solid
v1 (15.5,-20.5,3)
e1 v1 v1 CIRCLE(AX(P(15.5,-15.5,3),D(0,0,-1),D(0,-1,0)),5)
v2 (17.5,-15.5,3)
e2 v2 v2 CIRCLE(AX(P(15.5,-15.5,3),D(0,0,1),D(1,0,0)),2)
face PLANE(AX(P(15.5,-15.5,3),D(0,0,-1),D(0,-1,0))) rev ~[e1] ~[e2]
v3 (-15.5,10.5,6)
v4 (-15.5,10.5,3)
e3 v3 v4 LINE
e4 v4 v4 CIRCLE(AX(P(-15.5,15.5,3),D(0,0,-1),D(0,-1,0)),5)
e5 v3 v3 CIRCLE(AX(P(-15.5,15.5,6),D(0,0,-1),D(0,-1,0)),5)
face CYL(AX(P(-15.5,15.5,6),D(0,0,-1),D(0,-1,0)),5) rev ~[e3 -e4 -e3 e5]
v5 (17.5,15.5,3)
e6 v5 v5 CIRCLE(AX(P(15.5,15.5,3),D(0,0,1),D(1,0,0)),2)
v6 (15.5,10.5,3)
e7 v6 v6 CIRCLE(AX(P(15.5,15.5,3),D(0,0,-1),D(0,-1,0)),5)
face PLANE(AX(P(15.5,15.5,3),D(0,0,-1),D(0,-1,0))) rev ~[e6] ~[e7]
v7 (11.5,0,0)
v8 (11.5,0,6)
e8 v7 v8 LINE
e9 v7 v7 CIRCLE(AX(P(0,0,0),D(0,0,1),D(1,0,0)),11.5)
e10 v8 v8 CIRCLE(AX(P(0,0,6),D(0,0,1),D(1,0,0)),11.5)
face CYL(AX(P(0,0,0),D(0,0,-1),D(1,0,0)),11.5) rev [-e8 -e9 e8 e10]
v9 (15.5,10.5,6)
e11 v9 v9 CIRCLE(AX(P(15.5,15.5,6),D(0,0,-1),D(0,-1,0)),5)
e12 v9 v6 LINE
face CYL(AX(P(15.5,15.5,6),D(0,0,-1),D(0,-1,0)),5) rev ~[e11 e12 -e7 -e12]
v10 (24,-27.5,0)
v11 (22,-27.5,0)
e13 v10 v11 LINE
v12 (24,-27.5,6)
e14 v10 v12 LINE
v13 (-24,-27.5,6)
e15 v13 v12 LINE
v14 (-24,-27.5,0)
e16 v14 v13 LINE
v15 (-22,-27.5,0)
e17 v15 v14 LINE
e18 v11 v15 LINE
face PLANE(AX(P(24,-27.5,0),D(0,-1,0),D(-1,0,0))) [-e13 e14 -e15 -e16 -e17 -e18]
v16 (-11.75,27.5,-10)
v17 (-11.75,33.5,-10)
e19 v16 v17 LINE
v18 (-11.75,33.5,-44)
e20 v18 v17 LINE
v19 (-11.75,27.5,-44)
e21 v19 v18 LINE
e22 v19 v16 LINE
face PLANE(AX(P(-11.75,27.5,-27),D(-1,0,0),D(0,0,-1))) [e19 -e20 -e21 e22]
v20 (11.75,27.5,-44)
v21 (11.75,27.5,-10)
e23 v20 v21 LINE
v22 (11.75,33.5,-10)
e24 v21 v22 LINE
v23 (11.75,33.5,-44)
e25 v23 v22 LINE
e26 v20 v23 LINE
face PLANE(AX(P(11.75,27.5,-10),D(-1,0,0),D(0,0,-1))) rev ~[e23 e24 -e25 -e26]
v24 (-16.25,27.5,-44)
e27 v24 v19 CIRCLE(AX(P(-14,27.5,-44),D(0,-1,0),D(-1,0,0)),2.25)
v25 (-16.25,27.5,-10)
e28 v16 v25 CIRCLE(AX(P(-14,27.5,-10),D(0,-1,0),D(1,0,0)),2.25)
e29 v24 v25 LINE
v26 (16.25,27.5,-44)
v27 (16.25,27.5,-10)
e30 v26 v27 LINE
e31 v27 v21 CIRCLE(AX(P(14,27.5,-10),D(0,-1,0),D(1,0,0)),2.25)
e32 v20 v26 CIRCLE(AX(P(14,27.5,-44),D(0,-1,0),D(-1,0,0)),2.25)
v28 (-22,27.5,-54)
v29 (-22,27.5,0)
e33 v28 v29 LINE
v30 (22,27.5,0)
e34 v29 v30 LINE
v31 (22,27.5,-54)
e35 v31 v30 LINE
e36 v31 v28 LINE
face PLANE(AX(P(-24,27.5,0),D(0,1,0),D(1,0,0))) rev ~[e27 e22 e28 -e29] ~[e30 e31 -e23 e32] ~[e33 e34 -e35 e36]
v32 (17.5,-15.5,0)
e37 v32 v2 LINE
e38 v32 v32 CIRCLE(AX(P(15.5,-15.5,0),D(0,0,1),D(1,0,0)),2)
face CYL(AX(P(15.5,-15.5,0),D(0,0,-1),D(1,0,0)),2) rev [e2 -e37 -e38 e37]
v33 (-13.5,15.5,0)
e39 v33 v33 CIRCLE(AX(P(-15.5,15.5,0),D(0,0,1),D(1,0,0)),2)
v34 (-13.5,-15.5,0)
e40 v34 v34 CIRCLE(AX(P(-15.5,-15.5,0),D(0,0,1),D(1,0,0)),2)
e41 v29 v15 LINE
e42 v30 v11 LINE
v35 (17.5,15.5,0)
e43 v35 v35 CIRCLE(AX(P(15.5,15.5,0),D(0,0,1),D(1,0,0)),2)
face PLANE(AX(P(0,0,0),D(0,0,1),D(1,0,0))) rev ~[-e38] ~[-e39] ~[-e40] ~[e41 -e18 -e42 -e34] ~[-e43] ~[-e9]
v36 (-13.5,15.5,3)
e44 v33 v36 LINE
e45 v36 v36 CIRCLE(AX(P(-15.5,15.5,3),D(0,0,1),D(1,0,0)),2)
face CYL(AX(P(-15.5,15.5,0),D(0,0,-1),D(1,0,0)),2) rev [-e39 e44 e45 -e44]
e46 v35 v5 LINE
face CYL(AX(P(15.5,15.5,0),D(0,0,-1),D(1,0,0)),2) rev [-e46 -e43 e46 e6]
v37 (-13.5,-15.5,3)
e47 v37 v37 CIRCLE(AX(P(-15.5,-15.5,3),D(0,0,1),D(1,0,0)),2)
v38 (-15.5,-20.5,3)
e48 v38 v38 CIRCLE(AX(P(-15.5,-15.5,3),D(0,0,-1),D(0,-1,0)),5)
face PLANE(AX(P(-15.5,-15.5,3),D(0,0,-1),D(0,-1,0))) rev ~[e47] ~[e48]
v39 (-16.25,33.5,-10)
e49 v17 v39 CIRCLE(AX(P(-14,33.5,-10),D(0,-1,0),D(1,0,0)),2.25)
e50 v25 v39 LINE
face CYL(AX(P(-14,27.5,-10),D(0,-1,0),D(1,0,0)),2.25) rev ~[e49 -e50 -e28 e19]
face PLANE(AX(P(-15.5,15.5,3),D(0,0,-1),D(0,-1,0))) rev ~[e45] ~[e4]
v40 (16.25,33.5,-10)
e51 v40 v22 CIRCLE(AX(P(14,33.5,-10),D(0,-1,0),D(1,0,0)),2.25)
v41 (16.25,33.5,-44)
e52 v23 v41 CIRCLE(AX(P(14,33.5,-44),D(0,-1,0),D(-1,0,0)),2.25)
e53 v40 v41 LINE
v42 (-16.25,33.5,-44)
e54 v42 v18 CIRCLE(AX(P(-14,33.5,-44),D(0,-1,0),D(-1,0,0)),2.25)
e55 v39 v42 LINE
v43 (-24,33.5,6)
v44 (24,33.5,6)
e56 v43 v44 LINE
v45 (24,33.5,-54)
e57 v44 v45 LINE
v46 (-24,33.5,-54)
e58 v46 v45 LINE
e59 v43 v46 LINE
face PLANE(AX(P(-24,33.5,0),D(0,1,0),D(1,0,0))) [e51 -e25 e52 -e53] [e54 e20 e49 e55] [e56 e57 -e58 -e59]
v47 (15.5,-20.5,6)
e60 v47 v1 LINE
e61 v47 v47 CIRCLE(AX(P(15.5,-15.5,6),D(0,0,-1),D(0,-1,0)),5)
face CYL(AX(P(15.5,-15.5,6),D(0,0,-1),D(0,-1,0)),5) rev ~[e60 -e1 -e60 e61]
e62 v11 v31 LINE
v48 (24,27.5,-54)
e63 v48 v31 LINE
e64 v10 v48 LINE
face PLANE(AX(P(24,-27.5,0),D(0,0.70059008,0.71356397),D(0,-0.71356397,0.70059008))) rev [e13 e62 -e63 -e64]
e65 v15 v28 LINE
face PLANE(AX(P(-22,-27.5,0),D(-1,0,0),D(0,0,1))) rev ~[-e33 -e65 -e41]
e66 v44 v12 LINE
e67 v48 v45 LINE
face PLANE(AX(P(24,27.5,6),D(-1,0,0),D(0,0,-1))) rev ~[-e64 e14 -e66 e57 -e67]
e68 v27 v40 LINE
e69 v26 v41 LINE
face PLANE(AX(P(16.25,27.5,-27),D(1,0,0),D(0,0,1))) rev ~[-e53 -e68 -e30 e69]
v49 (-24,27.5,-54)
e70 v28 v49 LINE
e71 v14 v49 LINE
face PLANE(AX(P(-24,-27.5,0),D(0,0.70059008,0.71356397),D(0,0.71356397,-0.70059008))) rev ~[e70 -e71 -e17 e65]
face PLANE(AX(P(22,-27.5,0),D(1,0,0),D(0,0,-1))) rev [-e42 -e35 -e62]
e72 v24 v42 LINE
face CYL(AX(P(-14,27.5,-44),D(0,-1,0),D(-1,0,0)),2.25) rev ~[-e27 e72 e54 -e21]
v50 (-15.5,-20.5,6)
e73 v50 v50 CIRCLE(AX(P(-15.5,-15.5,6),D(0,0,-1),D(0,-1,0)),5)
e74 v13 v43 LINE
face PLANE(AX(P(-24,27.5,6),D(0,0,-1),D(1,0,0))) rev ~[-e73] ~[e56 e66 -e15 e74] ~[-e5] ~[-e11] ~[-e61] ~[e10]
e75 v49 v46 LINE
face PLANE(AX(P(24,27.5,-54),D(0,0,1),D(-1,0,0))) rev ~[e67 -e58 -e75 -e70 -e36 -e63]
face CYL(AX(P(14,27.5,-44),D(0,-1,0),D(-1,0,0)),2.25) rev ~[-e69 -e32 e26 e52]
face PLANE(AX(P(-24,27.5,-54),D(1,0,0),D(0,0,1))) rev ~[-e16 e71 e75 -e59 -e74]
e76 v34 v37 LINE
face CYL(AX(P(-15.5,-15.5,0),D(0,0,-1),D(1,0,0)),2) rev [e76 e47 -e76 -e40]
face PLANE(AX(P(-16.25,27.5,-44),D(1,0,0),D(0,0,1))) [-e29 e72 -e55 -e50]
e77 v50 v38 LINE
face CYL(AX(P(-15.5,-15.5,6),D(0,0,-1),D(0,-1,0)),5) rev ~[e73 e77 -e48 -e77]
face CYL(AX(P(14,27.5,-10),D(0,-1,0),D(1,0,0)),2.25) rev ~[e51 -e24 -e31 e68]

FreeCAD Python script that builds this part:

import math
import FreeCAD as App
import Part
import Sketcher
from FreeCAD import Vector
Q = App.Units.Quantity


def add_polygon(sketch, points):
    """Adds a closed chain of lines whose ends are joined by coincident constraints."""
    first, n = sketch.GeometryCount, len(points)
    for a, b in zip(points, points[1:] + points[:1]):
        sketch.addGeometry(Part.LineSegment(App.Vector(*a, 0), App.Vector(*b, 0)), False)
    for i in range(n):
        sketch.addConstraint(Sketcher.Constraint("Coincident", first + i, 2, first + (i + 1) % n, 1))

doc = App.newDocument("Part")
params = doc.addObject("Spreadsheet::Sheet", "Params")
for row, (alias, value) in enumerate([
    ("sketch1_diameter", "4 mm"),
    ("sketch1_diameter2", "23 mm"),
    ("sketch1_width", "48 mm"),
    ("sketch1_height", "55 mm"),
    ("pad1_length", "6 mm"),
    ("sketch2_diameter", "4 mm"),
    ("hole_diameter", "4 mm"),
    ("hole_cbore_diameter", "10 mm"),
    ("hole_cbore_depth", "3 mm"),
    ("sketch3_height", "60 mm"),
    ("sketch3_width", "48 mm"),
    ("pad2_length", "6 mm"),
    ("sketch4_radius", "2.25 mm"),
    ("sketch4_height", "34 mm"),
    ("sketch5_width", "61 mm"),
    ("sketch5_width2", "6 mm"),
    ("sketch5_height", "60 mm"),
    ("pad3_length", "2 mm"),
], start=1):
    params.set(f"A{row}", alias)
    params.set(f"B{row}", "=" + value)
    params.setAlias(f"B{row}", alias)

body = doc.addObject("PartDesign::Body", "Body")

# Sketch on XY plane
sketch1 = doc.addObject("Sketcher::SketchObject", "Sketch")
body.addObject(sketch1)
sketch1.AttachmentSupport = (doc.XY_Plane, [""])
sketch1.MapMode = "FlatFace"
add_polygon(sketch1, [(24, 27.5), (-24, 27.5), (-24, -27.5), (24, -27.5)])  # lines 0-3
sketch1.addGeometry(Part.Circle(Vector(-15.5, -15.5, 0), Vector(0, 0, 1), 2), False)  # 4
sketch1.addGeometry(Part.Circle(Vector(15.5, -15.5, 0), Vector(0, 0, 1), 2), False)  # 5
sketch1.addGeometry(Part.Circle(Vector(-15.5, 15.5, 0), Vector(0, 0, 1), 2), False)  # 6
sketch1.addGeometry(Part.Circle(Vector(0, 0, 0), Vector(0, 0, 1), 11.5), False)  # 7
sketch1.addGeometry(Part.Circle(Vector(15.5, 15.5, 0), Vector(0, 0, 1), 2), False)  # 8
sketch1.addConstraint(Sketcher.Constraint("Horizontal", 0))
sketch1.addConstraint(Sketcher.Constraint("Vertical", 1))
sketch1.addConstraint(Sketcher.Constraint("Horizontal", 2))
sketch1.addConstraint(Sketcher.Constraint("Vertical", 3))
sketch1.addConstraint(Sketcher.Constraint("Coincident", 7, 3, -1, 1))
sketch1.addConstraint(Sketcher.Constraint("Equal", 4, 5))
sketch1.addConstraint(Sketcher.Constraint("Equal", 5, 6))
sketch1.addConstraint(Sketcher.Constraint("Equal", 6, 8))
sketch1.addConstraint(Sketcher.Constraint("Symmetric", 5, 3, 6, 3, -1, 1))
sketch1.addConstraint(Sketcher.Constraint("Symmetric", 4, 3, 8, 3, -1, 1))
sketch1.addConstraint(Sketcher.Constraint("Symmetric", 0, 2, 2, 2, -1, 1))
sketch1.addConstraint(Sketcher.Constraint("Symmetric", 4, 3, 5, 3, -2))
sketch1.addConstraint(Sketcher.Constraint("Diameter", 4, Q("4 mm")))
sketch1.addConstraint(Sketcher.Constraint("Diameter", 7, Q("23 mm")))
sketch1.addConstraint(Sketcher.Constraint("DistanceX", 0, 2, 0, 1, Q("48 mm")))
sketch1.addConstraint(Sketcher.Constraint("DistanceY", 1, 2, 1, 1, Q("55 mm")))
sketch1.addConstraint(Sketcher.Constraint("DistanceX", 4, 3, 5, 3, Q("31 mm")))
sketch1.addConstraint(Sketcher.Constraint("DistanceY", 4, 3, 6, 3, Q("31 mm")))
sketch1.setExpression("Constraints[16]", "Params.sketch1_diameter")
sketch1.setExpression("Constraints[17]", "Params.sketch1_diameter2")
sketch1.setExpression("Constraints[18]", "Params.sketch1_width")
sketch1.setExpression("Constraints[19]", "Params.sketch1_height")
pad1 = doc.addObject("PartDesign::Pad", "Pad")
body.addObject(pad1)
pad1.Profile = sketch1
pad1.setExpression("Length", "Params.pad1_length")

# Sketch on XY plane
sketch2 = doc.addObject("Sketcher::SketchObject", "Sketch001")
body.addObject(sketch2)
sketch2.AttachmentSupport = (doc.XY_Plane, [""])
sketch2.MapMode = "FlatFace"
sketch2.AttachmentOffset = App.Placement(Vector(0, 0, 6), App.Rotation())
sketch2.addGeometry(Part.Circle(Vector(-15.5, 15.5, 0), Vector(0, 0, 1), 2), False)
sketch2.addGeometry(Part.Circle(Vector(15.5, 15.5, 0), Vector(0, 0, 1), 2), False)
sketch2.addGeometry(Part.Circle(Vector(15.5, -15.5, 0), Vector(0, 0, 1), 2), False)
sketch2.addGeometry(Part.Circle(Vector(-15.5, -15.5, 0), Vector(0, 0, 1), 2), False)
sketch2.addConstraint(Sketcher.Constraint("Equal", 0, 1))
sketch2.addConstraint(Sketcher.Constraint("Equal", 1, 2))
sketch2.addConstraint(Sketcher.Constraint("Equal", 2, 3))
sketch2.addConstraint(Sketcher.Constraint("Symmetric", 0, 3, 2, 3, -1, 1))
sketch2.addConstraint(Sketcher.Constraint("Symmetric", 1, 3, 3, 3, -1, 1))
sketch2.addConstraint(Sketcher.Constraint("Symmetric", 0, 3, 1, 3, -2))
sketch2.addConstraint(Sketcher.Constraint("Diameter", 0, Q("4 mm")))
sketch2.addConstraint(Sketcher.Constraint("DistanceX", 0, 3, 1, 3, Q("31 mm")))
sketch2.addConstraint(Sketcher.Constraint("DistanceY", 2, 3, 1, 3, Q("31 mm")))
sketch2.setExpression("Constraints[6]", "Params.sketch2_diameter")
doc.recompute()
hole = doc.addObject("PartDesign::Hole", "Hole")
body.addObject(hole)
hole.Profile = sketch2
hole.ThreadType = "None"
hole.setExpression("Diameter", "Params.hole_diameter")
hole.DepthType = "ThroughAll"
hole.HoleCutType = "Counterbore"
hole.setExpression("HoleCutDiameter", "Params.hole_cbore_diameter")
hole.setExpression("HoleCutDepth", "Params.hole_cbore_depth")

# Sketch on XZ plane
sketch3 = doc.addObject("Sketcher::SketchObject", "Sketch002")
body.addObject(sketch3)
sketch3.AttachmentSupport = (doc.XZ_Plane, [""])
sketch3.MapMode = "FlatFace"
sketch3.AttachmentOffset = App.Placement(Vector(0, 0, -27.5), App.Rotation())
add_polygon(sketch3, [(-24, -54), (-24, 6), (24, 6), (24, -54)])  # lines 0-3
sketch3.addConstraint(Sketcher.Constraint("Vertical", 0))
sketch3.addConstraint(Sketcher.Constraint("Horizontal", 1))
sketch3.addConstraint(Sketcher.Constraint("Vertical", 2))
sketch3.addConstraint(Sketcher.Constraint("Horizontal", 3))
sketch3.addConstraint(Sketcher.Constraint("DistanceY", 0, 1, 0, 2, Q("60 mm")))
sketch3.addConstraint(Sketcher.Constraint("DistanceX", 1, 1, 1, 2, Q("48 mm")))
sketch3.addConstraint(Sketcher.Constraint("DistanceX", 0, 2, -1, 1, Q("24 mm")))
sketch3.addConstraint(Sketcher.Constraint("DistanceY", -1, 1, 0, 2, Q("6 mm")))
sketch3.setExpression("Constraints[8]", "Params.sketch3_height")
sketch3.setExpression("Constraints[9]", "Params.sketch3_width")
pad2 = doc.addObject("PartDesign::Pad", "Pad001")
body.addObject(pad2)
pad2.Profile = sketch3
pad2.setExpression("Length", "Params.pad2_length")
pad2.Reversed = True

# Sketch on XZ plane
sketch4 = doc.addObject("Sketcher::SketchObject", "Sketch003")
body.addObject(sketch4)
sketch4.AttachmentSupport = (doc.XZ_Plane, [""])
sketch4.MapMode = "FlatFace"
sketch4.AttachmentOffset = App.Placement(Vector(0, 0, -27.5), App.Rotation())
sketch4.addGeometry(Part.ArcOfCircle(Part.Circle(Vector(-14, -44, 0), Vector(0, 0, 1), 2.2), math.radians(180), math.radians(360)), False)
sketch4.addGeometry(Part.LineSegment(Vector(-11.8, -44, 0), Vector(-11.8, -10, 0)), False)
sketch4.addGeometry(Part.ArcOfCircle(Part.Circle(Vector(-14, -10, 0), Vector(0, 0, 1), 2.2), math.radians(0), math.radians(180)), False)
sketch4.addGeometry(Part.LineSegment(Vector(-16.2, -10, 0), Vector(-16.2, -44, 0)), False)
sketch4.addGeometry(Part.LineSegment(Vector(11.8, -10, 0), Vector(11.8, -44, 0)), False)
sketch4.addGeometry(Part.ArcOfCircle(Part.Circle(Vector(14, -44, 0), Vector(0, 0, 1), 2.2), math.radians(180), math.radians(360)), False)
sketch4.addGeometry(Part.LineSegment(Vector(16.2, -44, 0), Vector(16.2, -10, 0)), False)
sketch4.addGeometry(Part.ArcOfCircle(Part.Circle(Vector(14, -10, 0), Vector(0, 0, 1), 2.2), math.radians(0), math.radians(180)), False)
sketch4.addConstraint(Sketcher.Constraint("Tangent", 0, 2, 1, 1))
sketch4.addConstraint(Sketcher.Constraint("Tangent", 1, 2, 2, 1))
sketch4.addConstraint(Sketcher.Constraint("Tangent", 2, 2, 3, 1))
sketch4.addConstraint(Sketcher.Constraint("Tangent", 3, 2, 0, 1))
sketch4.addConstraint(Sketcher.Constraint("Tangent", 4, 2, 5, 1))
sketch4.addConstraint(Sketcher.Constraint("Tangent", 5, 2, 6, 1))
sketch4.addConstraint(Sketcher.Constraint("Tangent", 6, 2, 7, 1))
sketch4.addConstraint(Sketcher.Constraint("Tangent", 7, 2, 4, 1))
sketch4.addConstraint(Sketcher.Constraint("Vertical", 1))
sketch4.addConstraint(Sketcher.Constraint("Vertical", 3))
sketch4.addConstraint(Sketcher.Constraint("Vertical", 4))
sketch4.addConstraint(Sketcher.Constraint("Vertical", 6))
sketch4.addConstraint(Sketcher.Constraint("Equal", 2, 5))
sketch4.addConstraint(Sketcher.Constraint("Symmetric", 0, 3, 5, 3, -2))
sketch4.addConstraint(Sketcher.Constraint("Horizontal", 2, 3, 7, 3))
sketch4.addConstraint(Sketcher.Constraint("Radius", 0, Q("2.25 mm")))
sketch4.addConstraint(Sketcher.Constraint("DistanceY", 2, 3, -1, 1, Q("10 mm")))
sketch4.addConstraint(Sketcher.Constraint("DistanceY", 1, 1, 1, 2, Q("34 mm")))
sketch4.addConstraint(Sketcher.Constraint("DistanceX", 0, 3, -1, 1, Q("14 mm")))
sketch4.setExpression("Constraints[15]", "Params.sketch4_radius")
sketch4.setExpression("Constraints[17]", "Params.sketch4_height")
pocket1 = doc.addObject("PartDesign::Pocket", "Pocket")
body.addObject(pocket1)
pocket1.Profile = sketch4
pocket1.Type = "ThroughAll"

# Sketch on YZ plane
sketch5 = doc.addObject("Sketcher::SketchObject", "Sketch004")
body.addObject(sketch5)
sketch5.AttachmentSupport = (doc.YZ_Plane, [""])
sketch5.MapMode = "FlatFace"
sketch5.AttachmentOffset = App.Placement(Vector(0, 0, -24), App.Rotation())
add_polygon(sketch5, [(-28, 0), (-28, 6), (34, 6), (34, -54), (28, -54)])  # lines 0-4
sketch5.addConstraint(Sketcher.Constraint("Vertical", 0))
sketch5.addConstraint(Sketcher.Constraint("Horizontal", 1))
sketch5.addConstraint(Sketcher.Constraint("Vertical", 2))
sketch5.addConstraint(Sketcher.Constraint("Horizontal", 3))
sketch5.addConstraint(Sketcher.Constraint("PointOnObject", 4, 2, -1))
sketch5.addConstraint(Sketcher.Constraint("Equal", 3, 0))
sketch5.addConstraint(Sketcher.Constraint("DistanceX", 1, 1, 1, 2, Q("61 mm")))
sketch5.addConstraint(Sketcher.Constraint("DistanceX", 3, 2, 3, 1, Q("6 mm")))
sketch5.addConstraint(Sketcher.Constraint("DistanceY", 2, 2, 2, 1, Q("60 mm")))
sketch5.addConstraint(Sketcher.Constraint("DistanceX", 0, 2, -1, 1, Q("27.5 mm")))
sketch5.setExpression("Constraints[11]", "Params.sketch5_width")
sketch5.setExpression("Constraints[12]", "Params.sketch5_width2")
sketch5.setExpression("Constraints[13]", "Params.sketch5_height")
pad3 = doc.addObject("PartDesign::Pad", "Pad002")
body.addObject(pad3)
pad3.Profile = sketch5
pad3.setExpression("Length", "Params.pad3_length")
doc.recompute()

mirrored = doc.addObject("PartDesign::Mirrored", "Mirrored")
body.addObject(mirrored)
mirrored.Originals = [pad3]
mirrored.MirrorPlane = (doc.YZ_Plane, [""])
body.Tip = mirrored

doc.recompute()
